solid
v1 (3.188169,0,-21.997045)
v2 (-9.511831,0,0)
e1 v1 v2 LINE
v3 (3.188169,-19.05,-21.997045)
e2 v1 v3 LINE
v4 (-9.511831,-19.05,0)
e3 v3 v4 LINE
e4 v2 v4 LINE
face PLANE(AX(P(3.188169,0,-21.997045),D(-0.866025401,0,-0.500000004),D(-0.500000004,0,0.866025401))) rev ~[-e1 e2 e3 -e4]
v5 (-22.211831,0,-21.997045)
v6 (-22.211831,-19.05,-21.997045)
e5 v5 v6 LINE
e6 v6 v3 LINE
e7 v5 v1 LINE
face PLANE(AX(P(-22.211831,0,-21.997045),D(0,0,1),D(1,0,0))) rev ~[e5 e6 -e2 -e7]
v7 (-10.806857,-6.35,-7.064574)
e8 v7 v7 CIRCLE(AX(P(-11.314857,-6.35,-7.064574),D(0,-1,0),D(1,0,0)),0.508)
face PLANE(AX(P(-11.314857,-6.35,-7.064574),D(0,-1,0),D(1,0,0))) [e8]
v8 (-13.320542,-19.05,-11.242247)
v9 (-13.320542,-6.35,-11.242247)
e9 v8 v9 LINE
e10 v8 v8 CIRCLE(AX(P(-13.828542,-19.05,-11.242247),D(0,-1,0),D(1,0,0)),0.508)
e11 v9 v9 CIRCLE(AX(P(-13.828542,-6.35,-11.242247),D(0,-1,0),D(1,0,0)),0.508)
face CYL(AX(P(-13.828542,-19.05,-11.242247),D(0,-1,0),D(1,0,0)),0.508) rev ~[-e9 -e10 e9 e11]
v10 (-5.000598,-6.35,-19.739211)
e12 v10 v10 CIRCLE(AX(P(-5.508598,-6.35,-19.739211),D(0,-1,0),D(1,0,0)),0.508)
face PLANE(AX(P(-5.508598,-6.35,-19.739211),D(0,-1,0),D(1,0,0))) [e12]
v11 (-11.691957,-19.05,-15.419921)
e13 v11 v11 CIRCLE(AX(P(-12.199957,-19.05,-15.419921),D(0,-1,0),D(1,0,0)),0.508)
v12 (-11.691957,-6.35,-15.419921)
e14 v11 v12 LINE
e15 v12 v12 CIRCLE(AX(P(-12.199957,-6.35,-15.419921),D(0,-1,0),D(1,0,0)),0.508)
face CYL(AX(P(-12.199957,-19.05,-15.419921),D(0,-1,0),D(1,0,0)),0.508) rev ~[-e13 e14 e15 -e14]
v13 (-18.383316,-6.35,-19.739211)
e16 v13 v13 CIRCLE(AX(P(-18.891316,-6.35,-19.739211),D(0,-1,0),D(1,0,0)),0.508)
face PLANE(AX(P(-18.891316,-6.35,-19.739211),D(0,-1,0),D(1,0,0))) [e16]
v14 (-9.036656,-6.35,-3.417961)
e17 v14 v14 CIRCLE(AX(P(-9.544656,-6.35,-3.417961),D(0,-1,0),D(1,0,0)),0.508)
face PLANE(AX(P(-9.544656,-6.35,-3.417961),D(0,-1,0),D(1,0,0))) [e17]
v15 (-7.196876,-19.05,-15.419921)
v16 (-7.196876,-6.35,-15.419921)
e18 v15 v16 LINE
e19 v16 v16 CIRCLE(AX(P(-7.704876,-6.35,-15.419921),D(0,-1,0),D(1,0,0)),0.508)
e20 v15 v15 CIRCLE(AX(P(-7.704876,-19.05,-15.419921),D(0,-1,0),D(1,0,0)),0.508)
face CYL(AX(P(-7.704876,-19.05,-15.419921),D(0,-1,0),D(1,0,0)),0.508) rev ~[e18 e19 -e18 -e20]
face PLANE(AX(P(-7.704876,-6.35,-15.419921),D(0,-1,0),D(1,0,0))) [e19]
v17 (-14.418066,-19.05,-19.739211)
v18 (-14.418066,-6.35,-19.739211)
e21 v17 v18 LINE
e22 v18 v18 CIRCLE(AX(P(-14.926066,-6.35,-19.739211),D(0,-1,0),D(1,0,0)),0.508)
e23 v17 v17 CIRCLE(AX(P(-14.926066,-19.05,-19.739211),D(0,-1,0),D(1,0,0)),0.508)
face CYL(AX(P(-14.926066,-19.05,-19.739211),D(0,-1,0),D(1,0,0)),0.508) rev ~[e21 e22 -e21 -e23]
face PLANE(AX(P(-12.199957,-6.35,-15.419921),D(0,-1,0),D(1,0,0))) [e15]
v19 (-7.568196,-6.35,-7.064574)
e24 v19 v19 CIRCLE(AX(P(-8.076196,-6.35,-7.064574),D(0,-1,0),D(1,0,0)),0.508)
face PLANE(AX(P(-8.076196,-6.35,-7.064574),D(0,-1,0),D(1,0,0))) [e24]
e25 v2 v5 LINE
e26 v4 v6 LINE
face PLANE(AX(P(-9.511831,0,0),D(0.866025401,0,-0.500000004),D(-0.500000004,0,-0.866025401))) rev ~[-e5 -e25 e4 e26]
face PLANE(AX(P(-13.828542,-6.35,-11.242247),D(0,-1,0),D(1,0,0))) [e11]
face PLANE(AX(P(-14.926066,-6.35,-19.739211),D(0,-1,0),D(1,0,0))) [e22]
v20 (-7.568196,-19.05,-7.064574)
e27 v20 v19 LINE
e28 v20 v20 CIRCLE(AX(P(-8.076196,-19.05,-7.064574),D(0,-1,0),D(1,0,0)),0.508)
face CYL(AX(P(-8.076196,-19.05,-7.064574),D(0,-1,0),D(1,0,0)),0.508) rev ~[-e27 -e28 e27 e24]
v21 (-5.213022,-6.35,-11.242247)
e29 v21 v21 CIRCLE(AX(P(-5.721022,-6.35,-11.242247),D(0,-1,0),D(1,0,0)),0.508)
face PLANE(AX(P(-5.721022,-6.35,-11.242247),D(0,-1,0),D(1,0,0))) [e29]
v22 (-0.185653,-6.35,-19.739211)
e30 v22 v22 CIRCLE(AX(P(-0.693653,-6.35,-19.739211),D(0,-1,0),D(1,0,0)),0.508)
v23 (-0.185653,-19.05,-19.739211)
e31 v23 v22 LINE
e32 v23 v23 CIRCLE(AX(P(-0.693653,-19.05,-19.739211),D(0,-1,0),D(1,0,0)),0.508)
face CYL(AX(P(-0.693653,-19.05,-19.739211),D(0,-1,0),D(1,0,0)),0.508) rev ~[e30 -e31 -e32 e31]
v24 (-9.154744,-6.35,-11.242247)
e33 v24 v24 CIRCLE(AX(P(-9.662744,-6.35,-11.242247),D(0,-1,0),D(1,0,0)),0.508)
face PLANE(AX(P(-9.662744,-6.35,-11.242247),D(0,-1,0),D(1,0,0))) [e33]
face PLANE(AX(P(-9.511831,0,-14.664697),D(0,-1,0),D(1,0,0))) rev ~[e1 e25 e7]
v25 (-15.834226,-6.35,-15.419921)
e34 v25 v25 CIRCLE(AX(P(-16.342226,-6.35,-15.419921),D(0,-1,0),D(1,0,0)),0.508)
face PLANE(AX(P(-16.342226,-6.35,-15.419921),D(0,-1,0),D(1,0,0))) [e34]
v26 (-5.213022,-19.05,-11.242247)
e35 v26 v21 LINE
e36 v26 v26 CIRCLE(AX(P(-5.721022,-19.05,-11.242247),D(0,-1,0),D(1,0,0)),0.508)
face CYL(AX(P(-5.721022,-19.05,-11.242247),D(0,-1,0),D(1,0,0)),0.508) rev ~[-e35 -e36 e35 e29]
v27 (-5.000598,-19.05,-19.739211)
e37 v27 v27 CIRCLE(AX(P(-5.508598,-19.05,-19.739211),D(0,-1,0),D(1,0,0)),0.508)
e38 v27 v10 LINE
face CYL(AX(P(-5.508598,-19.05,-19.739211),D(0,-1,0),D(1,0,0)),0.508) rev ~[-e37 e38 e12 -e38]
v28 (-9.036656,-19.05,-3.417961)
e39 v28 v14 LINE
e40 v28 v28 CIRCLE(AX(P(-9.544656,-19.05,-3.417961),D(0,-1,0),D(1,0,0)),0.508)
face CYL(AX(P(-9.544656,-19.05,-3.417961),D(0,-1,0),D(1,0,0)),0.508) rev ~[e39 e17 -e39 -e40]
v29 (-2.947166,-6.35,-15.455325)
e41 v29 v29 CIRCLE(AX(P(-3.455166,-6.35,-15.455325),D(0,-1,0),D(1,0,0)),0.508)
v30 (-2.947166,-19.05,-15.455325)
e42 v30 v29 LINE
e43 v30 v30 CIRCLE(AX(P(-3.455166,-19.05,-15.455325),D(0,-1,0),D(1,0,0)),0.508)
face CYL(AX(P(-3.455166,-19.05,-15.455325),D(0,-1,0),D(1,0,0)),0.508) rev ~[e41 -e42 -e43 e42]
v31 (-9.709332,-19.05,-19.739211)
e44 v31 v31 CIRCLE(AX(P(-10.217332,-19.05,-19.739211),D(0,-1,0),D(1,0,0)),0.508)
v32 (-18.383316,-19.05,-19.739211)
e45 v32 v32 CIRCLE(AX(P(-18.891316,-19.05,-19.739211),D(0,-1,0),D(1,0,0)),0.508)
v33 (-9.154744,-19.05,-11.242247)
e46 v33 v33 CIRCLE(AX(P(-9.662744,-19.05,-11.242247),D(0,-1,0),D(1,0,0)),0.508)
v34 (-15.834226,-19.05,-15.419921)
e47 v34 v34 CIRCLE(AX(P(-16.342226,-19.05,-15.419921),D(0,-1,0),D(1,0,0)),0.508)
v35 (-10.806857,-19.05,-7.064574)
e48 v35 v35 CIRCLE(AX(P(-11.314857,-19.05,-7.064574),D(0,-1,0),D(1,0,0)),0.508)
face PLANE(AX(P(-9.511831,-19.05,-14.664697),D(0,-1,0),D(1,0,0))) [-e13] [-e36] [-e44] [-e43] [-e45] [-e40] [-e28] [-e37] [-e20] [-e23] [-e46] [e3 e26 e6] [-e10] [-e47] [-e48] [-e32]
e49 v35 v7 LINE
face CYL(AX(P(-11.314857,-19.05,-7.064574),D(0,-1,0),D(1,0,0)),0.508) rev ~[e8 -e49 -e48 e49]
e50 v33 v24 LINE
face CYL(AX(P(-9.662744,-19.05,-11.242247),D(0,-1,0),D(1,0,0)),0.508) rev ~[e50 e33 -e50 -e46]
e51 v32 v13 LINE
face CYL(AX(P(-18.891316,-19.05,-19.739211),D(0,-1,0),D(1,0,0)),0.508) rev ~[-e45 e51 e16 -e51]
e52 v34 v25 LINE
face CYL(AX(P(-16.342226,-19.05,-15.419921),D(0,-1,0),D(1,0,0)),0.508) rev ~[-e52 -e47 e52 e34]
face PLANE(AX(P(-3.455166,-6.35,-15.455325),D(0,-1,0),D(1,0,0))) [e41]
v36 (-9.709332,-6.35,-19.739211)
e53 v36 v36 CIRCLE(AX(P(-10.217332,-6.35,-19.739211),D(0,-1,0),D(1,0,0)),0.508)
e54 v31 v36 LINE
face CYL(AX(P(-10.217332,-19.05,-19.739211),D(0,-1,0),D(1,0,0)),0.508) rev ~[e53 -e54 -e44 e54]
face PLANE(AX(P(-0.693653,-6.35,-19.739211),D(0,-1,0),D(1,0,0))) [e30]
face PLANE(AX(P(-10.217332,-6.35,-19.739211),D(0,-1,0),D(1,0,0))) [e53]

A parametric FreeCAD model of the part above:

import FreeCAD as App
import Part
import Sketcher

V = App.Vector
Q = App.Units.Quantity

doc = App.newDocument("Part")
body = doc.addObject("PartDesign::Body", "Body")

# Sketch on XZ plane
sketch1 = body.newObject("Sketcher::SketchObject", "Sketch")
sketch1.AttachmentSupport = (doc.getObject("XZ_Plane"), [""])
sketch1.MapMode = "FlatFace"
sketch1.addGeometry([
    Part.LineSegment(V(-10, 0, 0), V(-22, -22, 0)),
    Part.LineSegment(V(-22, -22, 0), V(3, -22, 0)),
    Part.LineSegment(V(3, -22, 0), V(-10, 0, 0)),
], False)
sketch1.addConstraint([
    Sketcher.Constraint("Coincident", 0, 2, 1, 1),
    Sketcher.Constraint("Coincident", 1, 2, 2, 1),
    Sketcher.Constraint("Coincident", 2, 2, 0, 1),
    Sketcher.Constraint("Horizontal", 1),
    Sketcher.Constraint("PointOnObject", 2, 2, -1),
    Sketcher.Constraint("Equal", 0, 2),
    Sketcher.Constraint("DistanceX", 1, 1, 1, 2, Q("1 in")),
    Sketcher.Constraint("Distance", 0, Q("1 in")),
    Sketcher.Constraint("DistanceX", 0, 2, -1, 1, 22.211831),
])
pad1 = body.newObject("PartDesign::Pad", "Pad")
pad1.Profile = sketch1
pad1.Length = Q("0.75 in")

# Sketch on XZ plane
sketch2 = body.newObject("Sketcher::SketchObject", "Sketch001")
sketch2.AttachmentSupport = (doc.getObject("XZ_Plane"), [""])
sketch2.MapMode = "FlatFace"
sketch2.AttachmentOffset = App.Placement(V(0, 0, 0.75 * 25.4), App.Rotation())
sketch2.addGeometry([
    Part.Circle(V(-18.9, -19.7, 0), V(0, 0, 1), 0.5),  # 0
    Part.Circle(V(-14.9, -19.7, 0), V(0, 0, 1), 0.5),  # 1
    Part.Circle(V(-5.5, -19.7, 0), V(0, 0, 1), 0.5),  # 2
    Part.Circle(V(-0.7, -19.7, 0), V(0, 0, 1), 0.5),  # 3
    Part.Circle(V(-10.2, -19.7, 0), V(0, 0, 1), 0.5),  # 4
    Part.Circle(V(-12.2, -15.4, 0), V(0, 0, 1), 0.5),  # 5
    Part.Circle(V(-7.7, -15.4, 0), V(0, 0, 1), 0.5),  # 6
    Part.Circle(V(-3.5, -15.5, 0), V(0, 0, 1), 0.5),  # 7
    Part.Circle(V(-8.1, -7.1, 0), V(0, 0, 1), 0.5),  # 8
    Part.Circle(V(-13.8, -11.2, 0), V(0, 0, 1), 0.5),  # 9
    Part.Circle(V(-5.7, -11.2, 0), V(0, 0, 1), 0.5),  # 10
    Part.Circle(V(-9.5, -3.4, 0), V(0, 0, 1), 0.5),  # 11
    Part.Circle(V(-11.3, -7.1, 0), V(0, 0, 1), 0.5),  # 12
    Part.Circle(V(-9.7, -11.2, 0), V(0, 0, 1), 0.5),  # 13
    Part.Circle(V(-16.3, -15.4, 0), V(0, 0, 1), 0.5),  # 14
], False)
sketch2.addConstraint([
    Sketcher.Constraint("Equal", 0, 1),
    Sketcher.Constraint("Equal", 1, 2),
    Sketcher.Constraint("Equal", 2, 3),
    Sketcher.Constraint("Equal", 3, 4),
    Sketcher.Constraint("Equal", 4, 5),
    Sketcher.Constraint("Equal", 5, 6),
    Sketcher.Constraint("Equal", 6, 7),
    Sketcher.Constraint("Equal", 7, 8),
    Sketcher.Constraint("Equal", 8, 9),
    Sketcher.Constraint("Equal", 9, 10),
    Sketcher.Constraint("Equal", 10, 11),
    Sketcher.Constraint("Equal", 11, 12),
    Sketcher.Constraint("Equal", 12, 13),
    Sketcher.Constraint("Equal", 13, 14),
    Sketcher.Constraint("Horizontal", 0, 3, 1, 3),
    Sketcher.Constraint("Horizontal", 1, 3, 2, 3),
    Sketcher.Constraint("Horizontal", 2, 3, 3, 3),
    Sketcher.Constraint("Horizontal", 3, 3, 4, 3),
    Sketcher.Constraint("Horizontal", 5, 3, 6, 3),
    Sketcher.Constraint("Horizontal", 9, 3, 10, 3),
    Sketcher.Constraint("Horizontal", 8, 3, 12, 3),
    Sketcher.Constraint("Horizontal", 10, 3, 13, 3),
    Sketcher.Constraint("Horizontal", 6, 3, 14, 3),
    Sketcher.Constraint("Diameter", 0, Q("0.04 in")),
    Sketcher.Constraint("DistanceX", 5, 3, 11, 3, 2.655301),
    Sketcher.Constraint("DistanceX", 12, 3, 11, 3, 1.770201),
    Sketcher.Constraint("DistanceX", 9, 3, 13, 3, 4.165798),
    Sketcher.Constraint("DistanceY", 0, 3, -1, 1, 19.739211),
    Sketcher.Constraint("DistanceY", 5, 3, -1, 1, 15.419921),
    Sketcher.Constraint("DistanceX", 10, 3, -1, 1, 5.721022),
    Sketcher.Constraint("DistanceY", 11, 3, -1, 1, 3.417961),
    Sketcher.Constraint("DistanceX", 0, 3, 1, 3, 3.96525),
    Sketcher.Constraint("DistanceX", 4, 3, 3, 3, 9.523679),
    Sketcher.Constraint("DistanceX", 1, 3, 5, 3, 2.726109),
    Sketcher.Constraint("DistanceX", 5, 3, 2, 3, 6.691359),
    Sketcher.Constraint("DistanceX", 5, 3, 6, 3, 4.495081),
    Sketcher.Constraint("DistanceX", 6, 3, 7, 3, 4.24971),
    Sketcher.Constraint("DistanceX", 8, 3, 6, 3, 0.37132),
    Sketcher.Constraint("DistanceY", 7, 3, 8, 3, 8.390751),
    Sketcher.Constraint("DistanceX", 9, 3, 4, 3, 3.61121),
    Sketcher.Constraint("DistanceX", 9, 3, 10, 3, 8.10752),
    Sketcher.Constraint("DistanceX", 13, 3, 8, 3, 1.586548),
    Sketcher.Constraint("DistanceX", 14, 3, 5, 3, 4.142269),
    Sketcher.Constraint("DistanceY", 7, 3, -1, 1, 15.455325),
    Sketcher.Constraint("DistanceY", 9, 3, -1, 1, 11.242247),
])
pocket1 = body.newObject("PartDesign::Pocket", "Pocket")
pocket1.Profile = sketch2
pocket1.Length = Q("0.5 in")

doc.recompute()
